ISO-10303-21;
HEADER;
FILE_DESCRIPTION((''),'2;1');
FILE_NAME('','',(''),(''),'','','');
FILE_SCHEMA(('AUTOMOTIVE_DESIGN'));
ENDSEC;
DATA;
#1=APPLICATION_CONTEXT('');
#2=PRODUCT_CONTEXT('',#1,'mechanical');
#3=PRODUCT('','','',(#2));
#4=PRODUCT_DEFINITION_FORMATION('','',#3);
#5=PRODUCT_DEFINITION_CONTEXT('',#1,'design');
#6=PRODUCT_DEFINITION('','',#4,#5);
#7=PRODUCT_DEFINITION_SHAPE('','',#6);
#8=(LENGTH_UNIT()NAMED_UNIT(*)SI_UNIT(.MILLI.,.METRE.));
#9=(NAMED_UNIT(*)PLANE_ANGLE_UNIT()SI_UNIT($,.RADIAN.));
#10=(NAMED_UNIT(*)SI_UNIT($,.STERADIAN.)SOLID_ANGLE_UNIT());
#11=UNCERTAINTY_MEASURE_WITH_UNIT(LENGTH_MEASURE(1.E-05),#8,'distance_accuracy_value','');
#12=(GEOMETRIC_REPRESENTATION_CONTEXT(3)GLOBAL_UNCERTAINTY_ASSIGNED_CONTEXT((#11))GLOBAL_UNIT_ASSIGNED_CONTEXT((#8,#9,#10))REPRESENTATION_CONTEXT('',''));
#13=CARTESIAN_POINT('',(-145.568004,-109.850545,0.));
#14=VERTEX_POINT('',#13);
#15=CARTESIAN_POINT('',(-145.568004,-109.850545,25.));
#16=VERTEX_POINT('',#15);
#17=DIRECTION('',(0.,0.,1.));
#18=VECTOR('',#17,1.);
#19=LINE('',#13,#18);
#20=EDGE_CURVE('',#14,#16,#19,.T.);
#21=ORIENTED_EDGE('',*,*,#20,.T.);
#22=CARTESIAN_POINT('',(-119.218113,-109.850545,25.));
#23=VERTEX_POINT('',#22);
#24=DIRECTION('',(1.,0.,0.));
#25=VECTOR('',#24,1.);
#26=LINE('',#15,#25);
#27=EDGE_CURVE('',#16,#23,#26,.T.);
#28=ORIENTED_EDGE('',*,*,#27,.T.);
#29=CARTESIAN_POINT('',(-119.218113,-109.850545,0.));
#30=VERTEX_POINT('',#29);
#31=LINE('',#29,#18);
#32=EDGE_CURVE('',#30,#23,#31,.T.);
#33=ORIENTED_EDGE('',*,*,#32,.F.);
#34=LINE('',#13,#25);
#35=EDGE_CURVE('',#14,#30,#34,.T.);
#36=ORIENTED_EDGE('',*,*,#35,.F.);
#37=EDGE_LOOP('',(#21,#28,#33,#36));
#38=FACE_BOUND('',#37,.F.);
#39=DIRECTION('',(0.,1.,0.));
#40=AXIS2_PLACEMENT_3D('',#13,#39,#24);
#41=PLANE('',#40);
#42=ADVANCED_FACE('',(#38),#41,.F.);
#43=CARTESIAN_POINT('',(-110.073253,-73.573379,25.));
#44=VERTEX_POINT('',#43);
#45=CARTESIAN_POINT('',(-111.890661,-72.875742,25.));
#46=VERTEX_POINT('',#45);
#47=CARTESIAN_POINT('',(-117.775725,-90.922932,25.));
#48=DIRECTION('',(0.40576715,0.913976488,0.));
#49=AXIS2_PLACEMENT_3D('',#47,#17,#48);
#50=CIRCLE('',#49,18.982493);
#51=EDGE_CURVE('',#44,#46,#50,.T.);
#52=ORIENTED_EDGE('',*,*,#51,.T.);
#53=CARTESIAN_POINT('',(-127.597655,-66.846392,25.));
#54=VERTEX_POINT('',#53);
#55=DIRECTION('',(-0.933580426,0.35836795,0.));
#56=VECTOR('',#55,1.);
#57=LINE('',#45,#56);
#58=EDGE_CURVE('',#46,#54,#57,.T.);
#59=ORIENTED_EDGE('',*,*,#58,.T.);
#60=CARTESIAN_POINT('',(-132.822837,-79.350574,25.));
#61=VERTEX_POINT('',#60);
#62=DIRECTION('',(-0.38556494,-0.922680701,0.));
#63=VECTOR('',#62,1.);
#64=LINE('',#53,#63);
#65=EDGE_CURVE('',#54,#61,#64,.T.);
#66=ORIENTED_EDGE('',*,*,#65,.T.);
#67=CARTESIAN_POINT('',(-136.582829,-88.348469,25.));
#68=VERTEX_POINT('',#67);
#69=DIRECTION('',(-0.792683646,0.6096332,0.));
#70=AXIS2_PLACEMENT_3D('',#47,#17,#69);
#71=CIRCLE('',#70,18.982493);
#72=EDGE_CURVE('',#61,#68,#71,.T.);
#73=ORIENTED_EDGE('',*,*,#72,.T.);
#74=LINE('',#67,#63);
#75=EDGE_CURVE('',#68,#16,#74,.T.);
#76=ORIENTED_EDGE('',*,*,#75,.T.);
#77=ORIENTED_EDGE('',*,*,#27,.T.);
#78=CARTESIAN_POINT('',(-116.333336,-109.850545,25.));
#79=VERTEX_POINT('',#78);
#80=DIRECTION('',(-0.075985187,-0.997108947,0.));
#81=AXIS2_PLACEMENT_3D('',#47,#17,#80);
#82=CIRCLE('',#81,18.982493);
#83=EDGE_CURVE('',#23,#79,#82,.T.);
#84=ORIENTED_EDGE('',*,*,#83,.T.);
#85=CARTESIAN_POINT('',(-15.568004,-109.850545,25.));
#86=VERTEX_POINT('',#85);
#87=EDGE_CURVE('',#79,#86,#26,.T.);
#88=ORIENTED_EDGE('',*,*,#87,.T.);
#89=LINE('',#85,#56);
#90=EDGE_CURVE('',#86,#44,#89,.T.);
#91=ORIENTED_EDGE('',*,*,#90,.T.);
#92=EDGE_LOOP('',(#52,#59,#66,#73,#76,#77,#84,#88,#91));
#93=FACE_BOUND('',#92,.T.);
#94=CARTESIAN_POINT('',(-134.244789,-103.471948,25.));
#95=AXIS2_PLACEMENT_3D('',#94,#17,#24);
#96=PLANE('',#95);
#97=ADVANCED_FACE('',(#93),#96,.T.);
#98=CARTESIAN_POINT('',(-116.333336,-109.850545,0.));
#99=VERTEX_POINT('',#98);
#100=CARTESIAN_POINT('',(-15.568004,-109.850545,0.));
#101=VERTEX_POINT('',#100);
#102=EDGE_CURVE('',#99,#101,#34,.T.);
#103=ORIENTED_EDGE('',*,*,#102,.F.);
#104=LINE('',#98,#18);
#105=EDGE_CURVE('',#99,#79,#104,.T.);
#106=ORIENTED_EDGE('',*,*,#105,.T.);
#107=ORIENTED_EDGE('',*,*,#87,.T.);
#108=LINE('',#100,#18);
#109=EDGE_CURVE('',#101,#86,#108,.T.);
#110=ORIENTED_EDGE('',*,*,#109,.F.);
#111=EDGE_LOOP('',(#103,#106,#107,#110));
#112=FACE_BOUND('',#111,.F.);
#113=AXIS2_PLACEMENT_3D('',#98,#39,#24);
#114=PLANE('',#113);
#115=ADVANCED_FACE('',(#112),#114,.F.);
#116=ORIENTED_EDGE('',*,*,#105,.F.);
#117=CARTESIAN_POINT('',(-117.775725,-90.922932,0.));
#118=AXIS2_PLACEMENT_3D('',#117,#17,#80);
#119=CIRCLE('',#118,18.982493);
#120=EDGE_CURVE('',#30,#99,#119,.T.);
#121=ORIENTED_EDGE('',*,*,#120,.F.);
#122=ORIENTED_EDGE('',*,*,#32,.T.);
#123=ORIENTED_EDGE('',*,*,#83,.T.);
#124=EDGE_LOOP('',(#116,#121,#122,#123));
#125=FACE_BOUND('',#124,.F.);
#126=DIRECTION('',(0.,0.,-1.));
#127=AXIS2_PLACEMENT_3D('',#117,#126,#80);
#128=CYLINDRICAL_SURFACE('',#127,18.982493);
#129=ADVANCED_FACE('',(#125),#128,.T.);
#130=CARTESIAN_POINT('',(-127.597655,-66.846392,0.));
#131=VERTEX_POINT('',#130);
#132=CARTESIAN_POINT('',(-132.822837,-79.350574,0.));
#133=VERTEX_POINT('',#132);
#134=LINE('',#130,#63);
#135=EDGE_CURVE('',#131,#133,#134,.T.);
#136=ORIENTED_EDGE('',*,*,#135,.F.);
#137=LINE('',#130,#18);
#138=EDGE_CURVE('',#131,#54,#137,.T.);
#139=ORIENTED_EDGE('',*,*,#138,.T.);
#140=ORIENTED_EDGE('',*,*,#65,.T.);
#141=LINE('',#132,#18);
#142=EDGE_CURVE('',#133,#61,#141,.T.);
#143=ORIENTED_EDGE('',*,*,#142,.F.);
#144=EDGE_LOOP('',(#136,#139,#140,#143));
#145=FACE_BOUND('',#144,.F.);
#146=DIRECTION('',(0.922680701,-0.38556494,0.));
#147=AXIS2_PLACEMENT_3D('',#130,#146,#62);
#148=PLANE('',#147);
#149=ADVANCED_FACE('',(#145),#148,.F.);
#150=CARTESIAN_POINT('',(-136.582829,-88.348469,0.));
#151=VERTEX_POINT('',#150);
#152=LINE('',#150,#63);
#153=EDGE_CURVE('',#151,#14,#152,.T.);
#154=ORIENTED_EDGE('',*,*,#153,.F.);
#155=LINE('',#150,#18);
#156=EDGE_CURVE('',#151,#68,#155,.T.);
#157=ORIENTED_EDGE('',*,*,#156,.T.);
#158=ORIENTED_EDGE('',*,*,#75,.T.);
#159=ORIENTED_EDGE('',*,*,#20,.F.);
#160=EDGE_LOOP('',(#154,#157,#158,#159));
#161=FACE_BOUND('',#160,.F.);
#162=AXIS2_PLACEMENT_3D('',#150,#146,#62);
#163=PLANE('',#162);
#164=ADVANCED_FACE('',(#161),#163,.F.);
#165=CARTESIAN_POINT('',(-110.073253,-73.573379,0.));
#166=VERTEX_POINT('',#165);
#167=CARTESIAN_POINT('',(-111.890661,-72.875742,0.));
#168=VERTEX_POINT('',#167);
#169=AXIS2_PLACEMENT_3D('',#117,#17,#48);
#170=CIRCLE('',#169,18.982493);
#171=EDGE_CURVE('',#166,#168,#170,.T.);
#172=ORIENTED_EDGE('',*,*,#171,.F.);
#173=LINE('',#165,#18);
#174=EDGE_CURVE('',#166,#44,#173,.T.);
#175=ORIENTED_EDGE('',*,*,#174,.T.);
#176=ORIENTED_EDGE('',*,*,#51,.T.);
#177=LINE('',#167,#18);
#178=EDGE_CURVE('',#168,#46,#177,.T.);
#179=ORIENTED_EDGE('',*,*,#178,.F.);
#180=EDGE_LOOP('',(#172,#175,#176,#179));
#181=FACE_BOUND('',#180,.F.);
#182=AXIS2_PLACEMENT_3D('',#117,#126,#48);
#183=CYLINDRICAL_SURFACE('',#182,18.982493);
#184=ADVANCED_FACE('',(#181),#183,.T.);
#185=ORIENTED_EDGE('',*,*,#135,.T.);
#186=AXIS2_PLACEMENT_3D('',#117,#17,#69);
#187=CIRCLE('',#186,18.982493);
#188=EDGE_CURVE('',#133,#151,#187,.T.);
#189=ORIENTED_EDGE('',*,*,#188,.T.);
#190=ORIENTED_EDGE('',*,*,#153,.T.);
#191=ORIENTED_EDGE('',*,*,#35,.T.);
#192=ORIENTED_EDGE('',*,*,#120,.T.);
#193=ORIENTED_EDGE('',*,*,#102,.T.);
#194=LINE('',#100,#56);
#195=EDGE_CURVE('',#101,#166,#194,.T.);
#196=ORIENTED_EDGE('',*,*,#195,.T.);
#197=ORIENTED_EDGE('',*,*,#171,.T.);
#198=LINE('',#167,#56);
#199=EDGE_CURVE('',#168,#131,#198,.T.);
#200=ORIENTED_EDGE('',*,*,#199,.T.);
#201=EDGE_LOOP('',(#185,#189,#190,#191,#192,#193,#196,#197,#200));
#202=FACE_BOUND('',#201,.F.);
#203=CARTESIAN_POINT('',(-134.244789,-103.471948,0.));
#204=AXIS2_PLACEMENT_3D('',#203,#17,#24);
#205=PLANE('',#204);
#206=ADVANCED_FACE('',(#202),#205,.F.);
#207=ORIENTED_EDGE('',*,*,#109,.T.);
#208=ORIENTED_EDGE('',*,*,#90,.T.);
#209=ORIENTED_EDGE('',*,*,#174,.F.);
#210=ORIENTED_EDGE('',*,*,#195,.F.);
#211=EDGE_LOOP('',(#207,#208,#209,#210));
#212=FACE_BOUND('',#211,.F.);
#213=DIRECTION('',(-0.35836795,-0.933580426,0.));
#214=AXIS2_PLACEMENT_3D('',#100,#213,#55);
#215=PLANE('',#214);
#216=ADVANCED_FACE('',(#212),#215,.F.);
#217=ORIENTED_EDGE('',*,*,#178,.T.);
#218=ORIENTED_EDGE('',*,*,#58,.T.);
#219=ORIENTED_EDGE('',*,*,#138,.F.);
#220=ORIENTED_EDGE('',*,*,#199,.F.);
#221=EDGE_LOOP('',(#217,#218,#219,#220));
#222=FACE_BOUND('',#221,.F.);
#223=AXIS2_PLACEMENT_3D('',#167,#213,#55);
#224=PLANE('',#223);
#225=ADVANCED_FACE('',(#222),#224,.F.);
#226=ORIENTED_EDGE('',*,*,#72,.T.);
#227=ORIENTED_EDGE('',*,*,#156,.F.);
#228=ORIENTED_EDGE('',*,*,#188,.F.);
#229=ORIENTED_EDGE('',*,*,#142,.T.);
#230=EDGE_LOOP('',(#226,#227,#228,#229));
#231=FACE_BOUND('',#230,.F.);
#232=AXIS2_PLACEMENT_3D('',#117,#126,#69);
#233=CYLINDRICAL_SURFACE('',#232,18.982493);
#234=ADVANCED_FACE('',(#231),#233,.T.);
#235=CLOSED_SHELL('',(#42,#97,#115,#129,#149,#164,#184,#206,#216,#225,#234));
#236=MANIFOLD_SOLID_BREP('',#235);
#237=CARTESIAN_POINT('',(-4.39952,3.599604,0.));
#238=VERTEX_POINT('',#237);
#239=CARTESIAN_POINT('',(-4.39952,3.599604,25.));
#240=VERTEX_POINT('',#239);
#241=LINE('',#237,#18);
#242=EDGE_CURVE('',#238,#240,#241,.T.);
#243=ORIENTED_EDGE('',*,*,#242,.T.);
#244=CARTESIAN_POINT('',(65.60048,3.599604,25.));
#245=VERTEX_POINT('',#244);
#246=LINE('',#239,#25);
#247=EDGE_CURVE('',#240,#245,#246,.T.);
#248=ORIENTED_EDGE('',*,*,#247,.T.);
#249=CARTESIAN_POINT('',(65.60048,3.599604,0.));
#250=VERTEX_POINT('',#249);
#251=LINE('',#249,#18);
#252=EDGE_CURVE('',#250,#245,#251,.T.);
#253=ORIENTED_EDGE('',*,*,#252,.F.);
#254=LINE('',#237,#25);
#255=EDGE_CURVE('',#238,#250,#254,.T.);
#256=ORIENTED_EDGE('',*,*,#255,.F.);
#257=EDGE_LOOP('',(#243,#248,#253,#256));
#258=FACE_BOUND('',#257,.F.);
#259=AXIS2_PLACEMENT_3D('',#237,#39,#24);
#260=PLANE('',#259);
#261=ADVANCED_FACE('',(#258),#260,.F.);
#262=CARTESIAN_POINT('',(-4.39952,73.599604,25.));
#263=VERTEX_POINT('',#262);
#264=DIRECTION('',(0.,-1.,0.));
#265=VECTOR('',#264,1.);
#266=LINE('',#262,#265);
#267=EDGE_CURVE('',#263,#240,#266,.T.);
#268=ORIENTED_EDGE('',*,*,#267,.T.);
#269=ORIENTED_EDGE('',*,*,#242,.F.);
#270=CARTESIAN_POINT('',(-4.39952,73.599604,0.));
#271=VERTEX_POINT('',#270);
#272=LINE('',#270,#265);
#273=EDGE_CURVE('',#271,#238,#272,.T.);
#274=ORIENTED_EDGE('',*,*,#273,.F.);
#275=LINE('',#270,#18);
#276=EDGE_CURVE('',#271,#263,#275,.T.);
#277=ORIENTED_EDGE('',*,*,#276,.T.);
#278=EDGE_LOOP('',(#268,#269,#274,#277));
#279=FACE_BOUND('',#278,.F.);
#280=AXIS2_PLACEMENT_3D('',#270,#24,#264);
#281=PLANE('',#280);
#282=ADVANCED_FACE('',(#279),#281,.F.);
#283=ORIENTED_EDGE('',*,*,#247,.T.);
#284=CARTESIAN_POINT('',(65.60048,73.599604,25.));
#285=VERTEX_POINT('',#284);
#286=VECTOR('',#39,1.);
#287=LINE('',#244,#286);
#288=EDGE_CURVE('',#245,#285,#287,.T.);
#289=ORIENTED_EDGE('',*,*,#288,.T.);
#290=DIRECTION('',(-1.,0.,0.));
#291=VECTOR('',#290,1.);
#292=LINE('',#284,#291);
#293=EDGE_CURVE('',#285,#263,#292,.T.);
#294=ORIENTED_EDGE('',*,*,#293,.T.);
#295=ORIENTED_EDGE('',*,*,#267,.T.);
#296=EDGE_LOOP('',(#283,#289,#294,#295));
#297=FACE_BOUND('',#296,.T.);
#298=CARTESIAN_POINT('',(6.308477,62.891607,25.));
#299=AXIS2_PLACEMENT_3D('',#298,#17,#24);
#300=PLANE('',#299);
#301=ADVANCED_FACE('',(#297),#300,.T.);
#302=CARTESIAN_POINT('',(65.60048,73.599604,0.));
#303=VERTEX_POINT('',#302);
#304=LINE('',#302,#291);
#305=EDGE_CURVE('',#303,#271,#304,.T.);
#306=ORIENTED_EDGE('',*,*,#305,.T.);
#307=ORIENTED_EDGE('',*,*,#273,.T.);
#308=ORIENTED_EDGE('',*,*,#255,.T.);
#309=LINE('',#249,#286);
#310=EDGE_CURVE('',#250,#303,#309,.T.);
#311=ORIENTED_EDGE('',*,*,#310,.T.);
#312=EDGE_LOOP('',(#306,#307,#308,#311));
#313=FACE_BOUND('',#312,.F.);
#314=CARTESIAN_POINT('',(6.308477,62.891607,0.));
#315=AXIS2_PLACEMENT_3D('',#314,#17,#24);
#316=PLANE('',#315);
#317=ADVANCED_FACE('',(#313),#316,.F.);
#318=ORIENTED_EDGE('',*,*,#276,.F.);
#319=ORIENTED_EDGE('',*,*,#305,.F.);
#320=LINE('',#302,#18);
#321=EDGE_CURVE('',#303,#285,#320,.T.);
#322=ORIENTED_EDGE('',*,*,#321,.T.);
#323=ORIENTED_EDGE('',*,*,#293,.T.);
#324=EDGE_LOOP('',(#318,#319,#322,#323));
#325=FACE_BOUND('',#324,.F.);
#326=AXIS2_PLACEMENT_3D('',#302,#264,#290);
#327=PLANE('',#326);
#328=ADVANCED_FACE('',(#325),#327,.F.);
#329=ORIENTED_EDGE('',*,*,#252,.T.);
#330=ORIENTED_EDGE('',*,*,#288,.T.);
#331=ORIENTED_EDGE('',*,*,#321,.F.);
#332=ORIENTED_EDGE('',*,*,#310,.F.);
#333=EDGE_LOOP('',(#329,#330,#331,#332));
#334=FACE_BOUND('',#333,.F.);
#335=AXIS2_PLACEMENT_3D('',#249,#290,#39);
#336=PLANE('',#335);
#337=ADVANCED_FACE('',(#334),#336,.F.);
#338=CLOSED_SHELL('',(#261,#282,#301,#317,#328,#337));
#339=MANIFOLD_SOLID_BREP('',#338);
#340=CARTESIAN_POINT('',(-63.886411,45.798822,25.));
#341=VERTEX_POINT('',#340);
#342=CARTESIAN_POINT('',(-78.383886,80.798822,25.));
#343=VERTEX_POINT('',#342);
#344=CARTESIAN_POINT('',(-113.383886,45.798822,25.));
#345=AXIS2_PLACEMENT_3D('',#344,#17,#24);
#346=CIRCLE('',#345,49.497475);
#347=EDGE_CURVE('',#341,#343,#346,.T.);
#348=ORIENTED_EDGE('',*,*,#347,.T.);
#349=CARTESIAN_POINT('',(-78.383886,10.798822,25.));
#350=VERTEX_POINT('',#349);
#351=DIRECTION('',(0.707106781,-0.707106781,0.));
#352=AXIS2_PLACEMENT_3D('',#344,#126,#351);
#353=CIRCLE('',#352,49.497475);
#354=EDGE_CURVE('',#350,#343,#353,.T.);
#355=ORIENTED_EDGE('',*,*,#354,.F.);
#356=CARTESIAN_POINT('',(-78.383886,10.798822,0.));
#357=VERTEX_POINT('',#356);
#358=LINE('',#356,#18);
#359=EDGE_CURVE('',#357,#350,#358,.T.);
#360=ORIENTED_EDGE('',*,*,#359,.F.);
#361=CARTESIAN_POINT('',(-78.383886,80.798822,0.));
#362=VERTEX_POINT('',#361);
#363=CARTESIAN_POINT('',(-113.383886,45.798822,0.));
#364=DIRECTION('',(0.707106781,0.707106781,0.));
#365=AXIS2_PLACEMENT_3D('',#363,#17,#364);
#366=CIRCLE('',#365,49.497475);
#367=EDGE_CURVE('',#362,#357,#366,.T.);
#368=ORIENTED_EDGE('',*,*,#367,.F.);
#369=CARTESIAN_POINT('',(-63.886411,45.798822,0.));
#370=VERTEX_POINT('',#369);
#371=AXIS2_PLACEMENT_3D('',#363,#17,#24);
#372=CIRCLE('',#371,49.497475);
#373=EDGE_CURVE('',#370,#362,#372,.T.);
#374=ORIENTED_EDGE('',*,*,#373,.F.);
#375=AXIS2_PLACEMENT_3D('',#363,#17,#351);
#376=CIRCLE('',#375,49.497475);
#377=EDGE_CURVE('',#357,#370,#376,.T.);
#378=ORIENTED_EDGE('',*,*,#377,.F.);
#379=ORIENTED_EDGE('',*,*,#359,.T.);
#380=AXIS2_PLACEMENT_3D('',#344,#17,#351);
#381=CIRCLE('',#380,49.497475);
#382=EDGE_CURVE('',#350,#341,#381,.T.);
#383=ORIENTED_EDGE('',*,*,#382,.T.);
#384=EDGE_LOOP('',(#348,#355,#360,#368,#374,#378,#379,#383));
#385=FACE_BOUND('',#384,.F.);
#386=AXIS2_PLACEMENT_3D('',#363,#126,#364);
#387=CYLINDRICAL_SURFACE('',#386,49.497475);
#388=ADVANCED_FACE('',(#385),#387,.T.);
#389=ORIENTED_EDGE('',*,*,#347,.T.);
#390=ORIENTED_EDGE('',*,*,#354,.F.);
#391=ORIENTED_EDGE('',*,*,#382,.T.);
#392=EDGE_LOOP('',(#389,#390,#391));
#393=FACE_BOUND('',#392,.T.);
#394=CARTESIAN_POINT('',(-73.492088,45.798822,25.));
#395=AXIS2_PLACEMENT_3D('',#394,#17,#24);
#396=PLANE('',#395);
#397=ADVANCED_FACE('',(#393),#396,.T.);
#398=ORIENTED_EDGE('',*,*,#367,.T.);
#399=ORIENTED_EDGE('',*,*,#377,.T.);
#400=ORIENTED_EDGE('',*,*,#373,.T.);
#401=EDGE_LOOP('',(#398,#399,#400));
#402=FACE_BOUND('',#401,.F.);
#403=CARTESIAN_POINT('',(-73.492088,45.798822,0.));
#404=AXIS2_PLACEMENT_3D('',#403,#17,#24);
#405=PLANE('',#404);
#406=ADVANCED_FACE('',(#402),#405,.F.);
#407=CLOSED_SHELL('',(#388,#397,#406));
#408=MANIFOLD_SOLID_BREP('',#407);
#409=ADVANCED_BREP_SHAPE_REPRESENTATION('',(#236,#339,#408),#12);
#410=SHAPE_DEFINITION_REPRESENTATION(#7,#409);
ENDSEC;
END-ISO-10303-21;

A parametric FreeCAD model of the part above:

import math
import FreeCAD as App
import Part
import Sketcher

V = App.Vector
Q = App.Units.Quantity


def add_polygon(sketch, points):
    """Adds a closed chain of lines whose ends are joined by coincident constraints."""
    first, n = sketch.GeometryCount, len(points)
    for a, b in zip(points, points[1:] + points[:1]):
        sketch.addGeometry(Part.LineSegment(App.Vector(*a, 0), App.Vector(*b, 0)), False)
    for i in range(n):
        sketch.addConstraint(Sketcher.Constraint("Coincident", first + i, 2, first + (i + 1) % n, 1))

doc = App.newDocument("Part")
body = doc.addObject("PartDesign::Body", "Body")

sketch1 = body.newObject("Sketcher::SketchObject", "Sketch")
sketch1.AttachmentSupport = (doc.getObject("XY_Plane"), [""])
sketch1.MapMode = "FlatFace"
sketch1.addGeometry([
    Part.ArcOfCircle(Part.Circle(V(-113, 46, 0), V(0, 0, 1), 49), math.radians(-45), math.radians(0)),
    Part.ArcOfCircle(Part.Circle(V(-113, 46, 0), V(0, 0, 1), 49), math.radians(0), math.radians(45)),
    Part.ArcOfCircle(Part.Circle(V(-113, 46, 0), V(0, 0, 1), 49), math.radians(45), math.radians(225)),
    Part.ArcOfCircle(Part.Circle(V(-113, 46, 0), V(0, 0, 1), 49), math.radians(-135), math.radians(-45)),
], False)
sketch1.addConstraint([
    Sketcher.Constraint("Tangent", 0, 2, 1, 1),
    Sketcher.Constraint("Tangent", 1, 2, 2, 1),
    Sketcher.Constraint("Tangent", 2, 2, 3, 1),
    Sketcher.Constraint("Tangent", 3, 2, 0, 1),
    Sketcher.Constraint("Equal", 0, 1),
    Sketcher.Constraint("Horizontal", 3, 3, 0, 2),
    Sketcher.Constraint("Horizontal", 2, 2, 3, 2),
    Sketcher.Constraint("Vertical", 1, 2, 3, 2),
    Sketcher.Constraint("DistanceY", 0, 2, 1, 2, 35.0),
    Sketcher.Constraint("DistanceX", 2, 3, 1, 2, 35.0),
    Sketcher.Constraint("DistanceX", 0, 2, -1, 1, 63.886411),
    Sketcher.Constraint("DistanceY", -1, 1, 0, 3, 45.798822),
])
pad1 = body.newObject("PartDesign::Pad", "Pad")
pad1.Profile = sketch1
pad1.Length = 25
body2 = doc.addObject("PartDesign::Body", "Body001")

sketch2 = body2.newObject("Sketcher::SketchObject", "Sketch001")
sketch2.AttachmentSupport = (doc.getObject("XY_Plane001"), [""])
sketch2.MapMode = "FlatFace"
sketch2.addGeometry([
    Part.LineSegment(V(-136.6, -88.3, 0), V(-145.6, -109.9, 0)),
    Part.LineSegment(V(-145.6, -109.9, 0), V(-119.2, -109.9, 0)),
    Part.ArcOfCircle(Part.Circle(V(-117.8, -90.9, 0), V(0, 0, 1), 19), math.radians(-94.36), math.radians(-85.64)),
    Part.LineSegment(V(-116.3, -109.9, 0), V(-15.6, -109.9, 0)),
    Part.LineSegment(V(-15.6, -109.9, 0), V(-110.1, -73.6, 0)),
    Part.ArcOfCircle(Part.Circle(V(-117.8, -90.9, 0), V(0, 0, 1), 19), math.radians(66.06), math.radians(71.94)),
    Part.LineSegment(V(-111.9, -72.9, 0), V(-127.6, -66.8, 0)),
    Part.LineSegment(V(-127.6, -66.8, 0), V(-132.8, -79.4, 0)),
    Part.ArcOfCircle(Part.Circle(V(-117.8, -90.9, 0), V(0, 0, 1), 19), math.radians(142), math.radians(172)),
], False)
sketch2.addConstraint([
    Sketcher.Constraint("Coincident", 0, 2, 1, 1),
    Sketcher.Constraint("Coincident", 1, 2, 2, 1),
    Sketcher.Constraint("Coincident", 2, 2, 3, 1),
    Sketcher.Constraint("Coincident", 3, 2, 4, 1),
    Sketcher.Constraint("Coincident", 4, 2, 5, 1),
    Sketcher.Constraint("Coincident", 5, 2, 6, 1),
    Sketcher.Constraint("Coincident", 6, 2, 7, 1),
    Sketcher.Constraint("Coincident", 7, 2, 8, 1),
    Sketcher.Constraint("Coincident", 8, 2, 0, 1),
    Sketcher.Constraint("Horizontal", 1),
    Sketcher.Constraint("Horizontal", 3),
    Sketcher.Constraint("Coincident", 5, 3, 2, 3),
    Sketcher.Constraint("Coincident", 8, 3, 2, 3),
    Sketcher.Constraint("Equal", 2, 5),
    Sketcher.Constraint("Equal", 5, 8),
    Sketcher.Constraint("Parallel", 4, 6),
    Sketcher.Constraint("Parallel", 0, 7),
    Sketcher.Constraint("Horizontal", 1, 2, 2, 2),
    Sketcher.Constraint("Angle", 4, Q("159 deg")),
    Sketcher.Constraint("Radius", 2, 18.982493),
    Sketcher.Constraint("DistanceX", 1, 1, 1, 2, 26.349891),
    Sketcher.Constraint("Distance", 0, 23.30392),
    Sketcher.Constraint("Distance", 6, 16.824468),
    Sketcher.Constraint("DistanceX", 3, 1, 3, 2, 100.765333),
    Sketcher.Constraint("DistanceY", 2, 3, -1, 1, 90.922932),
    Sketcher.Constraint("DistanceY", 4, 2, -1, 1, 73.573379),
    Sketcher.Constraint("DistanceX", 5, 2, -1, 1, 111.890661),
    Sketcher.Constraint("DistanceY", 5, 2, -1, 1, 72.875742),
])
pad2 = body2.newObject("PartDesign::Pad", "Pad001")
pad2.Profile = sketch2
pad2.Length = 25
body3 = doc.addObject("PartDesign::Body", "Body002")

sketch3 = body3.newObject("Sketcher::SketchObject", "Sketch002")
sketch3.AttachmentSupport = (doc.getObject("XY_Plane002"), [""])
sketch3.MapMode = "FlatFace"
add_polygon(sketch3, [(-4, 74), (-4, 4), (66, 4), (66, 74)])
sketch3.addConstraint([
    Sketcher.Constraint("Vertical", 0),
    Sketcher.Constraint("Horizontal", 1),
    Sketcher.Constraint("Vertical", 2),
    Sketcher.Constraint("Horizontal", 3),
    Sketcher.Constraint("Equal", 3, 0),
    Sketcher.Constraint("DistanceX", 1, 1, 1, 2, 70.0),
    Sketcher.Constraint("DistanceX", 0, 2, -1, 1, 4.39952),
    Sketcher.Constraint("DistanceY", -1, 1, 0, 2, 3.599604),
])
pad3 = body3.newObject("PartDesign::Pad", "Pad002")
pad3.Profile = sketch3
pad3.Length = 25

doc.recompute()
